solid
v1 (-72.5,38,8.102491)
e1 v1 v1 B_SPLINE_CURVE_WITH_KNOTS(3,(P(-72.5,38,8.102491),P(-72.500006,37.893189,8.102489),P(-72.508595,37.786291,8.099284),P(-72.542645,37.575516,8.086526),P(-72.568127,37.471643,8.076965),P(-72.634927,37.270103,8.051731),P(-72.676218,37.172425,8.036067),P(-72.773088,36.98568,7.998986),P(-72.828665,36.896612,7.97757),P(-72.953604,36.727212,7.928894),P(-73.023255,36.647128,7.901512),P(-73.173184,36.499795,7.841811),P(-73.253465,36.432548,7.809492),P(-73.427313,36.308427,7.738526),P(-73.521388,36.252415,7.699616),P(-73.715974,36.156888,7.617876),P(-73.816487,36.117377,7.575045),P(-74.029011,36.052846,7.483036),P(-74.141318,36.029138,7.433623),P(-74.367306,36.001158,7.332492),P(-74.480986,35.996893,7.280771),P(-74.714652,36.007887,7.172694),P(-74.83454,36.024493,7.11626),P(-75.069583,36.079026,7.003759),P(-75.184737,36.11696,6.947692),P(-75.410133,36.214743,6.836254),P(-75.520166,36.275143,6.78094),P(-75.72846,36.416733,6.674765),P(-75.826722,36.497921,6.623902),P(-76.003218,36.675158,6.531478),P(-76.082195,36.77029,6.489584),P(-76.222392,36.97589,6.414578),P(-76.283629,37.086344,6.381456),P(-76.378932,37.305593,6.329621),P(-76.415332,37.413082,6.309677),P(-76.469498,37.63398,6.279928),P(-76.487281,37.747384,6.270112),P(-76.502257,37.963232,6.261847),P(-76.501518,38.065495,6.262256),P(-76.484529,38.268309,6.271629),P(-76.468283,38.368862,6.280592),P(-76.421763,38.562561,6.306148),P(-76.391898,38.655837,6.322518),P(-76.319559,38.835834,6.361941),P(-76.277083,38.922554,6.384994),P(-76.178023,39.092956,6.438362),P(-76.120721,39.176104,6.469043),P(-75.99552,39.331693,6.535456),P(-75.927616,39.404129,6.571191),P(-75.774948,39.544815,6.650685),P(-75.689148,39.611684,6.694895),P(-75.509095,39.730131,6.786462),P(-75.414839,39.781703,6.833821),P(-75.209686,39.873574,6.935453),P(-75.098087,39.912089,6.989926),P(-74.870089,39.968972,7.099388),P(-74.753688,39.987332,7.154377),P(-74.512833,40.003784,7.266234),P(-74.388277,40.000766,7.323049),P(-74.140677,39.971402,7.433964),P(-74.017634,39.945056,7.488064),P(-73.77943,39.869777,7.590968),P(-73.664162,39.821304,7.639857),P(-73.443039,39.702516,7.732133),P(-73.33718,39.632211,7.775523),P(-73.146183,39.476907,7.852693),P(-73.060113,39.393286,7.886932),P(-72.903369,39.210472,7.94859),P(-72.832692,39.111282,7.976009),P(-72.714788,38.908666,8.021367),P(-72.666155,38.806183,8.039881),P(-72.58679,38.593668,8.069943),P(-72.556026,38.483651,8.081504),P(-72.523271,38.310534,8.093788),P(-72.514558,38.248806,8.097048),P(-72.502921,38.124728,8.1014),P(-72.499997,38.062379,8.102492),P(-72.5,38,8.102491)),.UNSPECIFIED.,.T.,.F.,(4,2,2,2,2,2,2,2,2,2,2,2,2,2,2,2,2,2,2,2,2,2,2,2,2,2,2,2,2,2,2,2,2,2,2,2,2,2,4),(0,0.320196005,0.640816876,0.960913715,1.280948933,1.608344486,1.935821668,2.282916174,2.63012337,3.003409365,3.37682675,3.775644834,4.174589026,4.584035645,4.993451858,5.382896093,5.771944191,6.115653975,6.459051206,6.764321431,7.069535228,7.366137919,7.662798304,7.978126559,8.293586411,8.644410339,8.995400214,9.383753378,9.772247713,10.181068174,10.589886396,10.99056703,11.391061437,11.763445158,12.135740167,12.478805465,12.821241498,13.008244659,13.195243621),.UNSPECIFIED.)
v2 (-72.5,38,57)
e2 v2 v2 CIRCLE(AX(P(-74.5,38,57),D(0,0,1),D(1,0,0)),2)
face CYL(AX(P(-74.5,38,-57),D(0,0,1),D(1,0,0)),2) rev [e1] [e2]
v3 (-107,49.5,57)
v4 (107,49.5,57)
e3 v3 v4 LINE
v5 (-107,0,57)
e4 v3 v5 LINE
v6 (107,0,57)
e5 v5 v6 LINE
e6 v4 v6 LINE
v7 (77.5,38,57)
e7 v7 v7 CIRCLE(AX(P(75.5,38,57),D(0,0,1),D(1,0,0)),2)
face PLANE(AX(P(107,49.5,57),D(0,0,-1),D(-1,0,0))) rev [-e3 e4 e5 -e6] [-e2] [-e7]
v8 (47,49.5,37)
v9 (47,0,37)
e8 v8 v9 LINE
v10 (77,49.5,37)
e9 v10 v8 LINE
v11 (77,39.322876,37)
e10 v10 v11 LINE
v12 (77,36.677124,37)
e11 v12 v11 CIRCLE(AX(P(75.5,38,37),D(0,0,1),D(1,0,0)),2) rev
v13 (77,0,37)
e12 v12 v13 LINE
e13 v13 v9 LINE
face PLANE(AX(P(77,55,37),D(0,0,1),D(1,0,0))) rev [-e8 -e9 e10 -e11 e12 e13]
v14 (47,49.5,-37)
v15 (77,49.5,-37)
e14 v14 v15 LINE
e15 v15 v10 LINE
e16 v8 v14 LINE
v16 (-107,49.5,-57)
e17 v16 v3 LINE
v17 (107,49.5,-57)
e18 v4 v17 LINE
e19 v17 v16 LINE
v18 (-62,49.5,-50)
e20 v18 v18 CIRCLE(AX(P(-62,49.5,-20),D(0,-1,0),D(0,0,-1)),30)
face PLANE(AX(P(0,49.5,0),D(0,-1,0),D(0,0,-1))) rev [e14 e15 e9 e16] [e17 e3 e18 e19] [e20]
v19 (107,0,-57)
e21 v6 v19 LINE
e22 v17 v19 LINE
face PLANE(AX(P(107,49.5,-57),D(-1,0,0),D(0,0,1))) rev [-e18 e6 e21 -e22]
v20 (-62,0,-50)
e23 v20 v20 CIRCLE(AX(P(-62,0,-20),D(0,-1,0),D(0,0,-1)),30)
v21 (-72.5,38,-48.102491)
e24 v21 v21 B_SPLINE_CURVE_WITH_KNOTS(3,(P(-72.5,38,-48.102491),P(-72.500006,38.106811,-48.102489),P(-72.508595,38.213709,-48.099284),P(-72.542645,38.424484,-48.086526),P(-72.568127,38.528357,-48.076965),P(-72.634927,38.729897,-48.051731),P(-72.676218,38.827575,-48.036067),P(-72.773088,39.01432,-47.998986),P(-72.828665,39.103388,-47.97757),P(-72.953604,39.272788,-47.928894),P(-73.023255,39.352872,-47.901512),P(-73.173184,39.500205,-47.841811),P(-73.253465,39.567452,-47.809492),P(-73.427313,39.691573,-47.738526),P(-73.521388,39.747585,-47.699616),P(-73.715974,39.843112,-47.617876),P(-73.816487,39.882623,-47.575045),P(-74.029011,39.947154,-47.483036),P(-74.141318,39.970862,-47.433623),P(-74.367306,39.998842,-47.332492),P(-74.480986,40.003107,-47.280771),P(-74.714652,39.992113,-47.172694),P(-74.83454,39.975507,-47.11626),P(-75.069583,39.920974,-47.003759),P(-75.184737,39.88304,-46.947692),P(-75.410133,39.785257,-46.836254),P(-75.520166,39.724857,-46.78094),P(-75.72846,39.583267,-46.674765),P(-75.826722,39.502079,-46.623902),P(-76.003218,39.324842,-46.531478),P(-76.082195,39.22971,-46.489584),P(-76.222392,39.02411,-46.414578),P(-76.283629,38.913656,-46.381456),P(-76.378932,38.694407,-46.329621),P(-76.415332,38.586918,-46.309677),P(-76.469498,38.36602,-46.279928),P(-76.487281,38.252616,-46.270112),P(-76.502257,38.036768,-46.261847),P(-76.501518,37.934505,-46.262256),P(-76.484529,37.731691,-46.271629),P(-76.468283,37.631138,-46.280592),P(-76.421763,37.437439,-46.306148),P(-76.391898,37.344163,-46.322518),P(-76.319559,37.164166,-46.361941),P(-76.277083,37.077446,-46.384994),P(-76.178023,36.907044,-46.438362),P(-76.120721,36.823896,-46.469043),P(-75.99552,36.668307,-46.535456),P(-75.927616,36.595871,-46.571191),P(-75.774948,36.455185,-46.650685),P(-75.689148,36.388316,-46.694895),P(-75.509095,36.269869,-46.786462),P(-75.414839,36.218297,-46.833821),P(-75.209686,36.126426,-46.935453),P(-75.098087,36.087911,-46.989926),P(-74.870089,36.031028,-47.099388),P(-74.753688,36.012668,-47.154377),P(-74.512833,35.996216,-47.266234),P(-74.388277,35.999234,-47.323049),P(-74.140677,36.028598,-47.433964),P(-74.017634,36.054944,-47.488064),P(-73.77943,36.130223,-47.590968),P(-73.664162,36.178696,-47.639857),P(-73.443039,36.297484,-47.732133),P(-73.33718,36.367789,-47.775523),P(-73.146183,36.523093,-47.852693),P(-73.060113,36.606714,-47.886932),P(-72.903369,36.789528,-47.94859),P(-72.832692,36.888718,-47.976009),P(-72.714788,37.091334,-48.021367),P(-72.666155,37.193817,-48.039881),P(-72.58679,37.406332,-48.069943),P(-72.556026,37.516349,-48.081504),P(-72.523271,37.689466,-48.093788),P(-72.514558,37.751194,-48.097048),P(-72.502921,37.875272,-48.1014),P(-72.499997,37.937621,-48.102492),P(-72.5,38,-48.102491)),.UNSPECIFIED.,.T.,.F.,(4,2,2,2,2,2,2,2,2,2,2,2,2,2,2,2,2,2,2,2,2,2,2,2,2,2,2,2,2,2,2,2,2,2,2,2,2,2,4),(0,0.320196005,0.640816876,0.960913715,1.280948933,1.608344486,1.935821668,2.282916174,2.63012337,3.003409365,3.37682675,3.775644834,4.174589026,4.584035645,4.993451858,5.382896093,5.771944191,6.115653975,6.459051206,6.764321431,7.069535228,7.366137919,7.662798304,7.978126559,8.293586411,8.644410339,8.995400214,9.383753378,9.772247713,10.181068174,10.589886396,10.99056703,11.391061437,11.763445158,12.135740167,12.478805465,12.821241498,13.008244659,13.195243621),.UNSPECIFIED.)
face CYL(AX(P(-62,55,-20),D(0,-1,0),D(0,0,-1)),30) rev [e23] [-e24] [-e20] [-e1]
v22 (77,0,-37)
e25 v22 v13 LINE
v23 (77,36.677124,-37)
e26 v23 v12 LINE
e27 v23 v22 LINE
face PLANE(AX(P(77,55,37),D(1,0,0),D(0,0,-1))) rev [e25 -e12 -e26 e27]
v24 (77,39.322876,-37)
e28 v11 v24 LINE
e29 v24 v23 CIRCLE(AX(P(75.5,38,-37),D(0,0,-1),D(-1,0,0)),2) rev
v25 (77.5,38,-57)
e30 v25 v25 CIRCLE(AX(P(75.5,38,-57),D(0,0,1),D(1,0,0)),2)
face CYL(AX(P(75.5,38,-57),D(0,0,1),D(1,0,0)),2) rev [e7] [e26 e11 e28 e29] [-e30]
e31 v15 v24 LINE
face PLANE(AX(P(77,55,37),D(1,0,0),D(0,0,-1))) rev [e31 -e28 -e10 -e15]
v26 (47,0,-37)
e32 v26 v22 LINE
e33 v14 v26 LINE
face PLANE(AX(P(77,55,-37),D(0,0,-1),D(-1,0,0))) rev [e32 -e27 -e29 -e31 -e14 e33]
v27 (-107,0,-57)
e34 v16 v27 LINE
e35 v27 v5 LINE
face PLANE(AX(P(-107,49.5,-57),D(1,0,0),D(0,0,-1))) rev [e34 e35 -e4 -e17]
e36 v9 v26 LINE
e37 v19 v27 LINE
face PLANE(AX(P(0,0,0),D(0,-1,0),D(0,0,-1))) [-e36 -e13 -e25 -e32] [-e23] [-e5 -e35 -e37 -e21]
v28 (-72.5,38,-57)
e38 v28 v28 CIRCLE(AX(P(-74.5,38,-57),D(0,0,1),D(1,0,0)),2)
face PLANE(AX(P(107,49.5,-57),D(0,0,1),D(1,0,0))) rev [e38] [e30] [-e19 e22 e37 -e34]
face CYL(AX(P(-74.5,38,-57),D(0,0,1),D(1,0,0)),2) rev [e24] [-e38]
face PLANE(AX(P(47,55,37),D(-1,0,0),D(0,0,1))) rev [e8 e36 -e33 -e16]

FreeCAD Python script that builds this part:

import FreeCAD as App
import Part
import Sketcher

V = App.Vector


def add_polygon(sketch, points):
    """Adds a closed chain of lines whose ends are joined by coincident constraints."""
    first, n = sketch.GeometryCount, len(points)
    for a, b in zip(points, points[1:] + points[:1]):
        sketch.addGeometry(Part.LineSegment(App.Vector(*a, 0), App.Vector(*b, 0)), False)
    for i in range(n):
        sketch.addConstraint(Sketcher.Constraint("Coincident", first + i, 2, first + (i + 1) % n, 1))

doc = App.newDocument("Part")
params = doc.addObject("Spreadsheet::Sheet", "Params")
for row, (alias, value) in enumerate([
    ("sketch1_width", "214 mm"),
    ("sketch1_height", "114 mm"),
    ("pad1_length", "49.5 mm"),
    ("sketch2_diameter", "4 mm"),
    ("sketch3_diameter", "60 mm"),
    ("sketch3_width", "30 mm"),
    ("sketch3_height", "74 mm"),
    ("pocket2_length", "55 mm"),
], start=1):
    params.set(f"A{row}", alias)
    params.set(f"B{row}", "=" + value)
    params.setAlias(f"B{row}", alias)

body = doc.addObject("PartDesign::Body", "Body")

# Sketch on XZ plane
sketch1 = doc.addObject("Sketcher::SketchObject", "Sketch")
body.addObject(sketch1)
sketch1.AttachmentSupport = (doc.XZ_Plane, [""])
sketch1.MapMode = "FlatFace"
add_polygon(sketch1, [(-107, -57), (-107, 57), (107, 57), (107, -57)])  # lines 0-3
sketch1.addConstraint([
    Sketcher.Constraint("Vertical", 0),
    Sketcher.Constraint("Horizontal", 1),
    Sketcher.Constraint("Vertical", 2),
    Sketcher.Constraint("Horizontal", 3),
    Sketcher.Constraint("Symmetric", 0, 2, 2, 2, -1, 1),
    Sketcher.Constraint("DistanceX", 1, 1, 1, 2, 214.0),
    Sketcher.Constraint("DistanceY", 0, 1, 0, 2, 114.0),
])
sketch1.setExpression("Constraints[9]", "Params.sketch1_width")
sketch1.setExpression("Constraints[10]", "Params.sketch1_height")
pad1 = doc.addObject("PartDesign::Pad", "Pad")
body.addObject(pad1)
pad1.Profile = sketch1
pad1.setExpression("Length", "Params.pad1_length")
pad1.Reversed = True

# Sketch on XY plane
sketch2 = doc.addObject("Sketcher::SketchObject", "Sketch001")
body.addObject(sketch2)
sketch2.AttachmentSupport = (doc.XY_Plane, [""])
sketch2.MapMode = "FlatFace"
sketch2.AttachmentOffset = App.Placement(V(0, 0, 57), App.Rotation())
sketch2.addGeometry([
    Part.Circle(V(-74.5, 38, 0), V(0, 0, 1), 2),
    Part.Circle(V(75.5, 38, 0), V(0, 0, 1), 2),
], False)
sketch2.addConstraint([
    Sketcher.Constraint("Equal", 0, 1),
    Sketcher.Constraint("Horizontal", 0, 3, 1, 3),
    Sketcher.Constraint("Diameter", 0, 4.0),
    Sketcher.Constraint("DistanceY", -1, 1, 0, 3, 38.0),
    Sketcher.Constraint("DistanceX", 0, 3, 1, 3, 150.0),
    Sketcher.Constraint("DistanceX", 0, 3, -1, 1, 74.5),
])
sketch2.setExpression("Constraints[2]", "Params.sketch2_diameter")
pocket1 = doc.addObject("PartDesign::Pocket", "Pocket")
body.addObject(pocket1)
pocket1.Profile = sketch2
pocket1.Type = "ThroughAll"

# Sketch on XZ plane
sketch3 = doc.addObject("Sketcher::SketchObject", "Sketch002")
body.addObject(sketch3)
sketch3.AttachmentSupport = (doc.XZ_Plane, [""])
sketch3.MapMode = "FlatFace"
sketch3.addGeometry(Part.Circle(V(-62, -20, 0), V(0, 0, 1), 30), False)  # 0
add_polygon(sketch3, [(47, 37), (47, -37), (77, -37), (77, 37)])  # lines 1-4
sketch3.addConstraint([
    Sketcher.Constraint("Vertical", 1),
    Sketcher.Constraint("Horizontal", 2),
    Sketcher.Constraint("Vertical", 3),
    Sketcher.Constraint("Horizontal", 4),
    Sketcher.Constraint("Diameter", 0, 60.0),
    Sketcher.Constraint("DistanceX", 2, 1, 2, 2, 30.0),
    Sketcher.Constraint("DistanceY", 1, 2, 1, 1, 74.0),
    Sketcher.Constraint("DistanceX", 0, 3, -1, 1, 62.0),
    Sketcher.Constraint("DistanceY", 0, 3, -1, 1, 20.0),
    Sketcher.Constraint("DistanceX", -1, 1, 1, 2, 47.0),
    Sketcher.Constraint("DistanceY", 1, 2, -1, 1, 37.0),
])
sketch3.setExpression("Constraints[8]", "Params.sketch3_diameter")
sketch3.setExpression("Constraints[9]", "Params.sketch3_width")
sketch3.setExpression("Constraints[10]", "Params.sketch3_height")
pocket2 = doc.addObject("PartDesign::Pocket", "Pocket001")
body.addObject(pocket2)
pocket2.Profile = sketch3
pocket2.setExpression("Length", "Params.pocket2_length")

doc.recompute()
